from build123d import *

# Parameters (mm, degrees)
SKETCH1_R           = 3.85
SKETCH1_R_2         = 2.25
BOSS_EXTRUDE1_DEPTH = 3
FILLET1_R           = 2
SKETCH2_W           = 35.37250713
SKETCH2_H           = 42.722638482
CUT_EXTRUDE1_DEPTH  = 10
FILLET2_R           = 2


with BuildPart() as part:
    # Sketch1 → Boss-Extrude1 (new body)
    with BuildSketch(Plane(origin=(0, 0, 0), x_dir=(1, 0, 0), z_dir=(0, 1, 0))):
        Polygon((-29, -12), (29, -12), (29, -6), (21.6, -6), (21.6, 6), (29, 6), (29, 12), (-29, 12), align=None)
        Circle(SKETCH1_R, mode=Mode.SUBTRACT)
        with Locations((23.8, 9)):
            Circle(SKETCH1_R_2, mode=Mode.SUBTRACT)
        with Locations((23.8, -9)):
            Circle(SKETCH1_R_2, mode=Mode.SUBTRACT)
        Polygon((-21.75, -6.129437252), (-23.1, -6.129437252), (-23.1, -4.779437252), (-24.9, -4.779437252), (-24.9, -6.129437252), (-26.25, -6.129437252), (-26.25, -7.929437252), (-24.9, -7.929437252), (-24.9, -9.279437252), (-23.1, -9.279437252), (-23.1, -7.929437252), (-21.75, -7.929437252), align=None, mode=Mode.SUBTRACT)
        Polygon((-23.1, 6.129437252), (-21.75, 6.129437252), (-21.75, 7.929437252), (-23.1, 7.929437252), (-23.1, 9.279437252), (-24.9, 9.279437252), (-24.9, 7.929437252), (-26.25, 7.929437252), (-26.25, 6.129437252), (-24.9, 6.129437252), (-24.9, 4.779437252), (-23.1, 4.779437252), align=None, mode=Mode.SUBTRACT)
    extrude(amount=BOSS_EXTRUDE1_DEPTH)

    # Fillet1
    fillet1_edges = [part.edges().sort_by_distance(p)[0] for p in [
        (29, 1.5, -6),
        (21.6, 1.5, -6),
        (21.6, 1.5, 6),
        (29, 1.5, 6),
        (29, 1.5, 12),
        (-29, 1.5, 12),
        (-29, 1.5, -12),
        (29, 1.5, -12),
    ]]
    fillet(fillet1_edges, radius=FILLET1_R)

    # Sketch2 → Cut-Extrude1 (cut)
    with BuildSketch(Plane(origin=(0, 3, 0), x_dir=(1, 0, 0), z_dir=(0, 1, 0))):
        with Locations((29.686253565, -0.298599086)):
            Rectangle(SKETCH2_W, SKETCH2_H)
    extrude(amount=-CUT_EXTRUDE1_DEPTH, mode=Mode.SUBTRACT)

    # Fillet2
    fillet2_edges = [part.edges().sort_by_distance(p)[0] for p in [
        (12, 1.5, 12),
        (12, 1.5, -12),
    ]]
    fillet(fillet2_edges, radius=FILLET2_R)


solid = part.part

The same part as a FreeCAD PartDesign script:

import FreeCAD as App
import Part
import Sketcher
from FreeCAD import Vector
Q = App.Units.Quantity


def edges_at(feature, points):
    """Names of the edges that pass closest to the given points."""
    edges = feature.Shape.Edges
    near = lambda p: min(range(len(edges)), key=lambda i: edges[i].distToShape(Part.Vertex(*p))[0])
    return sorted({f"Edge{near(p) + 1}" for p in points})


def add_polygon(sketch, points):
    """Adds a closed chain of lines whose ends are joined by coincident constraints."""
    first, n = sketch.GeometryCount, len(points)
    for a, b in zip(points, points[1:] + points[:1]):
        sketch.addGeometry(Part.LineSegment(App.Vector(*a, 0), App.Vector(*b, 0)), False)
    for i in range(n):
        sketch.addConstraint(Sketcher.Constraint("Coincident", first + i, 2, first + (i + 1) % n, 1))

doc = App.newDocument("Part")
body = doc.addObject("PartDesign::Body", "Body")

# Sketch on XZ plane
sketch1 = body.newObject("Sketcher::SketchObject", "Sketch")
sketch1.AttachmentSupport = (doc.getObject("XZ_Plane"), [""])
sketch1.MapMode = "FlatFace"
add_polygon(sketch1, [(-29, 12), (29, 12), (29, 6), (21.6, 6), (21.6, -6), (29, -6), (29, -12), (-29, -12)])  # lines 0-7
add_polygon(sketch1, [(-23.1, 6.1), (-21.8, 6.1), (-21.8, 7.9), (-23.1, 7.9), (-23.1, 9.3), (-24.9, 9.3), (-24.9, 7.9), (-26.2, 7.9), (-26.2, 6.1), (-24.9, 6.1), (-24.9, 4.8), (-23.1, 4.8)])  # lines 8-19
sketch1.addGeometry(Part.Circle(Vector(23.8, 9, 0), Vector(0, 0, 1), 2.2), False)  # 20
add_polygon(sketch1, [(-21.8, -6.1), (-23.1, -6.1), (-23.1, -4.8), (-24.9, -4.8), (-24.9, -6.1), (-26.2, -6.1), (-26.2, -7.9), (-24.9, -7.9), (-24.9, -9.3), (-23.1, -9.3), (-23.1, -7.9), (-21.8, -7.9)])  # lines 21-32
sketch1.addGeometry(Part.Circle(Vector(0, 0, 0), Vector(0, 0, 1), 3.9), False)  # 33
sketch1.addGeometry(Part.Circle(Vector(23.8, -9, 0), Vector(0, 0, 1), 2.2), False)  # 34
sketch1.addConstraint(Sketcher.Constraint("Horizontal", 0))
sketch1.addConstraint(Sketcher.Constraint("Vertical", 1))
sketch1.addConstraint(Sketcher.Constraint("Horizontal", 2))
sketch1.addConstraint(Sketcher.Constraint("Vertical", 3))
sketch1.addConstraint(Sketcher.Constraint("Horizontal", 4))
sketch1.addConstraint(Sketcher.Constraint("Vertical", 5))
sketch1.addConstraint(Sketcher.Constraint("Horizontal", 6))
sketch1.addConstraint(Sketcher.Constraint("Vertical", 7))
sketch1.addConstraint(Sketcher.Constraint("Horizontal", 8))
sketch1.addConstraint(Sketcher.Constraint("Vertical", 9))
sketch1.addConstraint(Sketcher.Constraint("Horizontal", 10))
sketch1.addConstraint(Sketcher.Constraint("Vertical", 11))
sketch1.addConstraint(Sketcher.Constraint("Horizontal", 12))
sketch1.addConstraint(Sketcher.Constraint("Vertical", 13))
sketch1.addConstraint(Sketcher.Constraint("Horizontal", 14))
sketch1.addConstraint(Sketcher.Constraint("Vertical", 15))
sketch1.addConstraint(Sketcher.Constraint("Horizontal", 16))
sketch1.addConstraint(Sketcher.Constraint("Vertical", 17))
sketch1.addConstraint(Sketcher.Constraint("Horizontal", 18))
sketch1.addConstraint(Sketcher.Constraint("Vertical", 19))
sketch1.addConstraint(Sketcher.Constraint("Horizontal", 21))
sketch1.addConstraint(Sketcher.Constraint("Vertical", 22))
sketch1.addConstraint(Sketcher.Constraint("Horizontal", 23))
sketch1.addConstraint(Sketcher.Constraint("Vertical", 24))
sketch1.addConstraint(Sketcher.Constraint("Horizontal", 25))
sketch1.addConstraint(Sketcher.Constraint("Vertical", 26))
sketch1.addConstraint(Sketcher.Constraint("Horizontal", 27))
sketch1.addConstraint(Sketcher.Constraint("Vertical", 28))
sketch1.addConstraint(Sketcher.Constraint("Horizontal", 29))
sketch1.addConstraint(Sketcher.Constraint("Vertical", 30))
sketch1.addConstraint(Sketcher.Constraint("Horizontal", 31))
sketch1.addConstraint(Sketcher.Constraint("Vertical", 32))
sketch1.addConstraint(Sketcher.Constraint("Coincident", 33, 3, -1, 1))
sketch1.addConstraint(Sketcher.Constraint("Equal", 20, 34))
sketch1.addConstraint(Sketcher.Constraint("Symmetric", 0, 2, 6, 2, -1, 1))
sketch1.addConstraint(Sketcher.Constraint("Symmetric", 20, 3, 34, 3, -1))
sketch1.addConstraint(Sketcher.Constraint("Symmetric", 1, 2, 4, 2, -1))
sketch1.addConstraint(Sketcher.Constraint("Symmetric", 19, 2, 21, 2, -1))
sketch1.addConstraint(Sketcher.Constraint("Symmetric", 17, 2, 23, 2, -1))
sketch1.addConstraint(Sketcher.Constraint("Symmetric", 15, 2, 25, 2, -1))
sketch1.addConstraint(Sketcher.Constraint("Symmetric", 13, 2, 27, 2, -1))
sketch1.addConstraint(Sketcher.Constraint("Symmetric", 11, 2, 29, 2, -1))
sketch1.addConstraint(Sketcher.Constraint("Symmetric", 9, 2, 31, 2, -1))
sketch1.addConstraint(Sketcher.Constraint("Horizontal", 10, 2, 13, 2))
sketch1.addConstraint(Sketcher.Constraint("Horizontal", 8, 2, 15, 2))
sketch1.addConstraint(Sketcher.Constraint("Vertical", 13, 2, 16, 2))
sketch1.addConstraint(Sketcher.Constraint("Vertical", 11, 2, 18, 2))
sketch1.addConstraint(Sketcher.Constraint("Equal", 10, 14))
sketch1.addConstraint(Sketcher.Constraint("Equal", 29, 9))
sketch1.addConstraint(Sketcher.Constraint("Equal", 31, 11))
sketch1.addConstraint(Sketcher.Constraint("Equal", 13, 17))
sketch1.addConstraint(Sketcher.Constraint("Diameter", 20, Q("4.5 mm")))
sketch1.addConstraint(Sketcher.Constraint("Diameter", 33, Q("7.7 mm")))
sketch1.addConstraint(Sketcher.Constraint("DistanceX", 0, 1, 0, 2, Q("58 mm")))
sketch1.addConstraint(Sketcher.Constraint("DistanceY", 1, 2, 1, 1, Q("6 mm")))
sketch1.addConstraint(Sketcher.Constraint("DistanceY", 3, 2, 3, 1, Q("12 mm")))
sketch1.addConstraint(Sketcher.Constraint("DistanceX", 2, 2, 2, 1, Q("7.4 mm")))
sketch1.addConstraint(Sketcher.Constraint("DistanceX", 12, 2, 12, 1, Q("1.8 mm")))
sketch1.addConstraint(Sketcher.Constraint("DistanceY", -1, 1, 20, 3, Q("9 mm")))
sketch1.addConstraint(Sketcher.Constraint("DistanceX", 8, 1, 8, 2, Q("1.35 mm")))
sketch1.addConstraint(Sketcher.Constraint("DistanceX", -1, 1, 20, 3, Q("23.8 mm")))
sketch1.addConstraint(Sketcher.Constraint("DistanceX", 10, 2, -1, 1, Q("23.1 mm")))
sketch1.addConstraint(Sketcher.Constraint("DistanceY", -1, 1, 8, 2, Q("6.129437 mm")))
pad1 = body.newObject("PartDesign::Pad", "Pad")
pad1.Profile = sketch1
pad1.Length = 3
pad1.Reversed = True
doc.recompute()

fillet = body.newObject("PartDesign::Fillet", "Fillet")
fillet.Base = (pad1, edges_at(pad1, [
    (29, 1.5, -6),
    (21.6, 1.5, -6),
    (21.6, 1.5, 6),
    (29, 1.5, 6),
    (29, 1.5, 12),
    (-29, 1.5, 12),
    (-29, 1.5, -12),
    (29, 1.5, -12),
]))
fillet.Radius = 2

# Sketch on XZ plane
sketch2 = body.newObject("Sketcher::SketchObject", "Sketch001")
sketch2.AttachmentSupport = (doc.getObject("XZ_Plane"), [""])
sketch2.MapMode = "FlatFace"
sketch2.AttachmentOffset = App.Placement(Vector(0, 0, -3), App.Rotation())
add_polygon(sketch2, [(12, -21), (12, 22), (47, 22), (47, -21)])  # lines 0-3
sketch2.addConstraint(Sketcher.Constraint("Vertical", 0))
sketch2.addConstraint(Sketcher.Constraint("Horizontal", 1))
sketch2.addConstraint(Sketcher.Constraint("Vertical", 2))
sketch2.addConstraint(Sketcher.Constraint("Horizontal", 3))
sketch2.addConstraint(Sketcher.Constraint("DistanceX", -1, 1, 0, 2, Q("12 mm")))
sketch2.addConstraint(Sketcher.Constraint("DistanceY", 0, 1, 0, 2, Q("42.722638 mm")))
sketch2.addConstraint(Sketcher.Constraint("DistanceX", 1, 1, 1, 2, Q("35.372507 mm")))
sketch2.addConstraint(Sketcher.Constraint("DistanceY", -1, 1, 0, 2, Q("21.659918 mm")))
pocket1 = body.newObject("PartDesign::Pocket", "Pocket")
pocket1.Profile = sketch2
pocket1.Length = 10
pocket1.Reversed = True
doc.recompute()

fillet2 = body.newObject("PartDesign::Fillet", "Fillet001")
fillet2.Base = (pocket1, edges_at(pocket1, [(12, 1.5, 12), (12, 1.5, -12)]))
fillet2.Radius = 2

doc.recompute()
